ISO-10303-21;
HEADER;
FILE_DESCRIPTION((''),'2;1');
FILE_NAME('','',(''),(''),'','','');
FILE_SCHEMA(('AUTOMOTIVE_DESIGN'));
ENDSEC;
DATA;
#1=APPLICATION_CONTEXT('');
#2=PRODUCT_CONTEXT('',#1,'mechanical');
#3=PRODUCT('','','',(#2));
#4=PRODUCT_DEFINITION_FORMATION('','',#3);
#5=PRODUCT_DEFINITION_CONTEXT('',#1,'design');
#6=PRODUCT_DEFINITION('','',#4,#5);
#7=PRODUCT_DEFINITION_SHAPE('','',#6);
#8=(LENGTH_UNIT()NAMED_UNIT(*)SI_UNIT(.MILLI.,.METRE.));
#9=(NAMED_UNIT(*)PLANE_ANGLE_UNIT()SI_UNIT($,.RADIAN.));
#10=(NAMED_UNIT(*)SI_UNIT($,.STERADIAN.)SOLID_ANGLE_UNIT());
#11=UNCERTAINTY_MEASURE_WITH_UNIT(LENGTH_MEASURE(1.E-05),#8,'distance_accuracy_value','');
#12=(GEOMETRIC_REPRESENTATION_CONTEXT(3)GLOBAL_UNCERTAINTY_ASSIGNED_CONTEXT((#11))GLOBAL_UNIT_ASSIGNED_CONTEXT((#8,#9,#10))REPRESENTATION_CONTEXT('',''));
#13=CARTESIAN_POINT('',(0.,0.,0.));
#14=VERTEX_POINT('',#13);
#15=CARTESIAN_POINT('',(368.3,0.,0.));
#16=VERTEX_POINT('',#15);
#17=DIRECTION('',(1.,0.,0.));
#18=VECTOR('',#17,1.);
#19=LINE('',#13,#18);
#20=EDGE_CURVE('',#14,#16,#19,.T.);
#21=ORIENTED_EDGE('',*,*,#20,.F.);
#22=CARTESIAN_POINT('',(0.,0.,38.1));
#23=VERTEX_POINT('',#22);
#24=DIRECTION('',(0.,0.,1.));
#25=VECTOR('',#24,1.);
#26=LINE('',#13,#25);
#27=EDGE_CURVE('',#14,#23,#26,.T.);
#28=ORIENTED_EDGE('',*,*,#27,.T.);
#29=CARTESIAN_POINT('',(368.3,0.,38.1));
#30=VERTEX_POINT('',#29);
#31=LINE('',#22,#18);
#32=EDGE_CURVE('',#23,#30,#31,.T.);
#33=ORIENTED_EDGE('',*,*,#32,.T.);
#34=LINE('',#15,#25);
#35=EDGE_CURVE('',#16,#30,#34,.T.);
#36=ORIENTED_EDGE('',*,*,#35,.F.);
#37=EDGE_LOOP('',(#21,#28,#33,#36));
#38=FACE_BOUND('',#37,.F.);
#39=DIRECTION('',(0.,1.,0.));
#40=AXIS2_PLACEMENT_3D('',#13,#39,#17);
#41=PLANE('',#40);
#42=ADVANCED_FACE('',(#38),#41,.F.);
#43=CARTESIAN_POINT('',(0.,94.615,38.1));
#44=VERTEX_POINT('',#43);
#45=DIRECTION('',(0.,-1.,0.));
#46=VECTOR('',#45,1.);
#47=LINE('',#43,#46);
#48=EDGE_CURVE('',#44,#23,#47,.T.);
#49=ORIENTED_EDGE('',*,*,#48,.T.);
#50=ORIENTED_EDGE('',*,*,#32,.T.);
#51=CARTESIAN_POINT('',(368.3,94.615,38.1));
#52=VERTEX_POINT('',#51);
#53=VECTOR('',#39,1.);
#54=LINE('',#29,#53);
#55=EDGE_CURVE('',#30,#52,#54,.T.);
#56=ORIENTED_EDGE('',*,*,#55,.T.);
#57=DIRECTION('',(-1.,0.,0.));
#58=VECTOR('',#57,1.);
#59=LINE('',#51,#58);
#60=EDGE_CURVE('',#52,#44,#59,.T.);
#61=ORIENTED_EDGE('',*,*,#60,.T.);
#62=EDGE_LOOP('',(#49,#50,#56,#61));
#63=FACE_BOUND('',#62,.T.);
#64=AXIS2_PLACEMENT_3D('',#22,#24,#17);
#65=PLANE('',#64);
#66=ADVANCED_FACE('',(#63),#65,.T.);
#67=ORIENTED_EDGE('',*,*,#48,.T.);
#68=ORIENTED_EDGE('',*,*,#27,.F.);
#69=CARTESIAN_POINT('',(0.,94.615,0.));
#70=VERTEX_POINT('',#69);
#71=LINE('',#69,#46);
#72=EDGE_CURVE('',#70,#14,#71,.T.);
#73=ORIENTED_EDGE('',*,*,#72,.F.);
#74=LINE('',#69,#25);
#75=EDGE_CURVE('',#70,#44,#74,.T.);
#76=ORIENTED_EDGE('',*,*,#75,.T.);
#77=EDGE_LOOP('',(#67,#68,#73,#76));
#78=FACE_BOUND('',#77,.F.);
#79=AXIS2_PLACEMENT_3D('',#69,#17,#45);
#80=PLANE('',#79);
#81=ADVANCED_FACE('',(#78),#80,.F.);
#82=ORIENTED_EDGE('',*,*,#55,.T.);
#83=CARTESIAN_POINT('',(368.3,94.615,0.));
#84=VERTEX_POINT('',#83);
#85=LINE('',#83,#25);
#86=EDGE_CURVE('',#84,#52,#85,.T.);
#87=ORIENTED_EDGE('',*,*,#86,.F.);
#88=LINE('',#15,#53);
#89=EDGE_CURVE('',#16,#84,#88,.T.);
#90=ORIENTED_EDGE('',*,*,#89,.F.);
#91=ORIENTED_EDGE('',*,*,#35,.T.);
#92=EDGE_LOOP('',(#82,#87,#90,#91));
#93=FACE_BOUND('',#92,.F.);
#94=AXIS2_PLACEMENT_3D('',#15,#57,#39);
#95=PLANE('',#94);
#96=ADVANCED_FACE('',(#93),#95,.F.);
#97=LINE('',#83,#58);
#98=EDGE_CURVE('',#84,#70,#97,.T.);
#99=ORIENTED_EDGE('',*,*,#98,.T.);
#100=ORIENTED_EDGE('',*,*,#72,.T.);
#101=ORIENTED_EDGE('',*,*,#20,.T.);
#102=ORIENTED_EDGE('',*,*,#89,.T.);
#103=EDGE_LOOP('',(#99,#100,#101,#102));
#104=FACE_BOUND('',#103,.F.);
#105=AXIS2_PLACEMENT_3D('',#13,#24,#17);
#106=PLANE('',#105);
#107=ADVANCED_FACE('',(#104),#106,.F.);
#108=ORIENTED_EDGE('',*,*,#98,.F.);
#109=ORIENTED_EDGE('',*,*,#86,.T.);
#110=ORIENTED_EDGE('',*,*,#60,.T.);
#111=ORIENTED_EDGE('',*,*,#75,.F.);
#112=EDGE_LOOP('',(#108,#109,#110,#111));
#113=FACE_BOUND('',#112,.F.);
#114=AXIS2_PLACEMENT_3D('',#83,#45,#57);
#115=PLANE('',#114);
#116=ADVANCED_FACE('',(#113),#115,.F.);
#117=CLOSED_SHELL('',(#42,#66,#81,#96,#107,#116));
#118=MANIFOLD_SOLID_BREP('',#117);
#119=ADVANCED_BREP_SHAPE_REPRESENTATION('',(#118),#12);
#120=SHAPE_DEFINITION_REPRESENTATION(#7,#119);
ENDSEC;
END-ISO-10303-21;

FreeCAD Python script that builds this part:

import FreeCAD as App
import Part
import Sketcher
from FreeCAD import Vector
Q = App.Units.Quantity


def add_polygon(sketch, points):
    """Adds a closed chain of lines whose ends are joined by coincident constraints."""
    first, n = sketch.GeometryCount, len(points)
    for a, b in zip(points, points[1:] + points[:1]):
        sketch.addGeometry(Part.LineSegment(App.Vector(*a, 0), App.Vector(*b, 0)), False)
    for i in range(n):
        sketch.addConstraint(Sketcher.Constraint("Coincident", first + i, 2, first + (i + 1) % n, 1))

doc = App.newDocument("Part")
body = doc.addObject("PartDesign::Body", "Body")

sketch1 = body.newObject("Sketcher::SketchObject", "Sketch")
sketch1.AttachmentSupport = (doc.getObject("XY_Plane"), [""])
sketch1.MapMode = "FlatFace"
add_polygon(sketch1, [(0, 94.615), (0, 0), (368.3, 0), (368.3, 94.615)])
sketch1.addConstraint([
    Sketcher.Constraint("Vertical", 0),
    Sketcher.Constraint("Horizontal", 1),
    Sketcher.Constraint("Vertical", 2),
    Sketcher.Constraint("Horizontal", 3),
    Sketcher.Constraint("Coincident", 0, 2, -1, 1),
    Sketcher.Constraint("DistanceX", 1, 1, 1, 2, Q("14.5 in")),
    Sketcher.Constraint("DistanceY", 0, 2, 0, 1, Q("3.725 in")),
])
pad1 = body.newObject("PartDesign::Pad", "Pad")
pad1.Profile = sketch1
pad1.Length = Q("1.5 in")

doc.recompute()
